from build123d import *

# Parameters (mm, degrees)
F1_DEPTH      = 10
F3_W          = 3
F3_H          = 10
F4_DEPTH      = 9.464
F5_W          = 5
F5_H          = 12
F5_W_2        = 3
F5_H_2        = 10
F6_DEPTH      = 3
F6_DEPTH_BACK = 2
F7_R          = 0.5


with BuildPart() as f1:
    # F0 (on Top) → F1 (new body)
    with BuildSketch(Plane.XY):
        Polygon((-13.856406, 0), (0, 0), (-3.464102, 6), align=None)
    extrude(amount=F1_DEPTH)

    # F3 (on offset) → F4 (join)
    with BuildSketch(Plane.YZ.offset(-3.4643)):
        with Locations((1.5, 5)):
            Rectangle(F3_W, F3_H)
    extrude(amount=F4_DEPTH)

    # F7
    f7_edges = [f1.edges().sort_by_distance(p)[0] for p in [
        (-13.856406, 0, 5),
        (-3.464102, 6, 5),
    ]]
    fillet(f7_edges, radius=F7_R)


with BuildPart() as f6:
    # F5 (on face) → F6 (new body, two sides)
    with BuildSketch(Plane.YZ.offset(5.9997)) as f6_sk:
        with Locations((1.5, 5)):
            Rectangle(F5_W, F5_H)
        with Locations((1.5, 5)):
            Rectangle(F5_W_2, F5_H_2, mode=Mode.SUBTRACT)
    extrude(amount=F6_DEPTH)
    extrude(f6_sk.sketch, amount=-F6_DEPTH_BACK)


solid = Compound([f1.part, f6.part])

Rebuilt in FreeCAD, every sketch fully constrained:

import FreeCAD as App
import Part
import Sketcher

V = App.Vector
Q = App.Units.Quantity


def edges_at(feature, points):
    """Names of the edges that pass closest to the given points."""
    edges = feature.Shape.Edges
    near = lambda p: min(range(len(edges)), key=lambda i: edges[i].distToShape(Part.Vertex(*p))[0])
    return sorted({f"Edge{near(p) + 1}" for p in points})


def add_polygon(sketch, points):
    """Adds a closed chain of lines whose ends are joined by coincident constraints."""
    first, n = sketch.GeometryCount, len(points)
    for a, b in zip(points, points[1:] + points[:1]):
        sketch.addGeometry(Part.LineSegment(App.Vector(*a, 0), App.Vector(*b, 0)), False)
    for i in range(n):
        sketch.addConstraint(Sketcher.Constraint("Coincident", first + i, 2, first + (i + 1) % n, 1))

doc = App.newDocument("Part")
params = doc.addObject("Spreadsheet::Sheet", "Params")
for row, (alias, value) in enumerate([
    ("sketch1_length", "11.999999 mm"),
    ("pad1_length", "10 mm"),
    ("sketch2_width", "3 mm"),
    ("sketch2_height", "10 mm"),
    ("pad2_length", "9.464 mm"),
    ("fillet_radius", "0.5 mm"),
    ("sketch3_width", "5 mm"),
    ("sketch3_width2", "3 mm"),
    ("sketch3_height", "12 mm"),
    ("sketch3_height2", "10 mm"),
    ("pad3_length", "3 mm"),
    ("pad3_length2", "2 mm"),
], start=1):
    params.set(f"A{row}", alias)
    params.set(f"B{row}", "=" + value)
    params.setAlias(f"B{row}", alias)

body = doc.addObject("PartDesign::Body", "Body")

# Sketch on XY plane
sketch1 = body.newObject("Sketcher::SketchObject", "Sketch")
sketch1.AttachmentSupport = (doc.getObject("XY_Plane"), [""])
sketch1.MapMode = "FlatFace"
add_polygon(sketch1, [(-14, 0), (0, 0), (-3, 6)])  # lines 0-2
sketch1.addConstraint([
    Sketcher.Constraint("Horizontal", 0),
    Sketcher.Constraint("Coincident", 0, 2, -1, 1),
    Sketcher.Constraint("Perpendicular", 1, 2),
    Sketcher.Constraint("Angle", 1, Q("120.000003 deg")),
    Sketcher.Constraint("Distance", 2, Q("11.999999 mm")),
])
sketch1.setExpression("Constraints[7]", "Params.sketch1_length")
pad1 = body.newObject("PartDesign::Pad", "Pad")
pad1.Profile = sketch1
pad1.setExpression("Length", "Params.pad1_length")

# Sketch on YZ plane
sketch2 = body.newObject("Sketcher::SketchObject", "Sketch001")
sketch2.AttachmentSupport = (doc.getObject("YZ_Plane"), [""])
sketch2.MapMode = "FlatFace"
sketch2.AttachmentOffset = App.Placement(V(0, 0, -3.4643), App.Rotation())
add_polygon(sketch2, [(0, 10), (0, 0), (3, 0), (3, 10)])  # lines 0-3
sketch2.addConstraint([
    Sketcher.Constraint("Vertical", 0),
    Sketcher.Constraint("Horizontal", 1),
    Sketcher.Constraint("Vertical", 2),
    Sketcher.Constraint("Horizontal", 3),
    Sketcher.Constraint("Coincident", 0, 2, -1, 1),
    Sketcher.Constraint("DistanceX", 1, 1, 1, 2, Q("3 mm")),
    Sketcher.Constraint("DistanceY", 0, 2, 0, 1, Q("10 mm")),
])
sketch2.setExpression("Constraints[9]", "Params.sketch2_width")
sketch2.setExpression("Constraints[10]", "Params.sketch2_height")
pad2 = body.newObject("PartDesign::Pad", "Pad001")
pad2.Profile = sketch2
pad2.setExpression("Length", "Params.pad2_length")
doc.recompute()

fillet = body.newObject("PartDesign::Fillet", "Fillet")
fillet.Base = (pad2, edges_at(pad2, [(-13.856, 0, 5), (-3.464, 6, 5)]))
fillet.setExpression("Radius", "Params.fillet_radius")
body2 = doc.addObject("PartDesign::Body", "Body001")

# Sketch on YZ plane
sketch3 = body2.newObject("Sketcher::SketchObject", "Sketch002")
sketch3.AttachmentSupport = (doc.getObject("YZ_Plane001"), [""])
sketch3.MapMode = "FlatFace"
sketch3.AttachmentOffset = App.Placement(V(0, 0, 5.9997), App.Rotation())
add_polygon(sketch3, [(-1, 11), (-1, -1), (4, -1), (4, 11)])  # lines 0-3
add_polygon(sketch3, [(3, 0), (0, 0), (0, 10), (3, 10)])  # lines 4-7
sketch3.addConstraint([
    Sketcher.Constraint("Vertical", 0),
    Sketcher.Constraint("Horizontal", 1),
    Sketcher.Constraint("Vertical", 2),
    Sketcher.Constraint("Horizontal", 3),
    Sketcher.Constraint("Horizontal", 4),
    Sketcher.Constraint("Vertical", 5),
    Sketcher.Constraint("Horizontal", 6),
    Sketcher.Constraint("Vertical", 7),
    Sketcher.Constraint("Coincident", 4, 2, -1, 1),
    Sketcher.Constraint("DistanceX", 1, 1, 1, 2, Q("5 mm")),
    Sketcher.Constraint("DistanceX", 4, 2, 4, 1, Q("3 mm")),
    Sketcher.Constraint("DistanceY", 0, 2, 0, 1, Q("12 mm")),
    Sketcher.Constraint("DistanceY", 5, 1, 5, 2, Q("10 mm")),
    Sketcher.Constraint("DistanceX", 0, 2, -1, 1, Q("1 mm")),
    Sketcher.Constraint("DistanceY", 0, 2, -1, 1, Q("1 mm")),
])
sketch3.setExpression("Constraints[17]", "Params.sketch3_width")
sketch3.setExpression("Constraints[18]", "Params.sketch3_width2")
sketch3.setExpression("Constraints[19]", "Params.sketch3_height")
sketch3.setExpression("Constraints[20]", "Params.sketch3_height2")
pad3 = body2.newObject("PartDesign::Pad", "Pad002")
pad3.Profile = sketch3
pad3.Type = "TwoLengths"
pad3.setExpression("Length", "Params.pad3_length")
pad3.setExpression("Length2", "Params.pad3_length2")

doc.recompute()
